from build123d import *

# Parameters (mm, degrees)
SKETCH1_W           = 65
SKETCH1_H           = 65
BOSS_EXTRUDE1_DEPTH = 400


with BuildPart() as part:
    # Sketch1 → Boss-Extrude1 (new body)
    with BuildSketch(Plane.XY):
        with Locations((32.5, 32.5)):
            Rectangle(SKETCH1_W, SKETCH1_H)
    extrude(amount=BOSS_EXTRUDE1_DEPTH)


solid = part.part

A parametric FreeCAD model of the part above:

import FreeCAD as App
import Part
import Sketcher

V = App.Vector
Q = App.Units.Quantity

doc = App.newDocument("Part")
body = doc.addObject("PartDesign::Body", "Body")

sketch1 = doc.addObject("Sketcher::SketchObject", "Sketch")
body.addObject(sketch1)
sketch1.AttachmentSupport = (doc.XY_Plane, [""])
sketch1.MapMode = "FlatFace"
sketch1.addGeometry(Part.LineSegment(V(0, 65, 0), V(0, 0, 0)), False)
sketch1.addGeometry(Part.LineSegment(V(0, 0, 0), V(65, 0, 0)), False)
sketch1.addGeometry(Part.LineSegment(V(65, 0, 0), V(65, 65, 0)), False)
sketch1.addGeometry(Part.LineSegment(V(65, 65, 0), V(0, 65, 0)), False)
sketch1.addConstraint(Sketcher.Constraint("Coincident", 0, 2, 1, 1))
sketch1.addConstraint(Sketcher.Constraint("Coincident", 1, 2, 2, 1))
sketch1.addConstraint(Sketcher.Constraint("Coincident", 2, 2, 3, 1))
sketch1.addConstraint(Sketcher.Constraint("Coincident", 3, 2, 0, 1))
sketch1.addConstraint(Sketcher.Constraint("Vertical", 0))
sketch1.addConstraint(Sketcher.Constraint("Horizontal", 1))
sketch1.addConstraint(Sketcher.Constraint("Vertical", 2))
sketch1.addConstraint(Sketcher.Constraint("Horizontal", 3))
sketch1.addConstraint(Sketcher.Constraint("Coincident", 0, 2, -1, 1))
sketch1.addConstraint(Sketcher.Constraint("Equal", 3, 0))
sketch1.addConstraint(Sketcher.Constraint("DistanceX", 1, 1, 1, 2, Q("65 mm")))
pad1 = doc.addObject("PartDesign::Pad", "Pad")
body.addObject(pad1)
pad1.Profile = sketch1
pad1.Length = 400

doc.recompute()
